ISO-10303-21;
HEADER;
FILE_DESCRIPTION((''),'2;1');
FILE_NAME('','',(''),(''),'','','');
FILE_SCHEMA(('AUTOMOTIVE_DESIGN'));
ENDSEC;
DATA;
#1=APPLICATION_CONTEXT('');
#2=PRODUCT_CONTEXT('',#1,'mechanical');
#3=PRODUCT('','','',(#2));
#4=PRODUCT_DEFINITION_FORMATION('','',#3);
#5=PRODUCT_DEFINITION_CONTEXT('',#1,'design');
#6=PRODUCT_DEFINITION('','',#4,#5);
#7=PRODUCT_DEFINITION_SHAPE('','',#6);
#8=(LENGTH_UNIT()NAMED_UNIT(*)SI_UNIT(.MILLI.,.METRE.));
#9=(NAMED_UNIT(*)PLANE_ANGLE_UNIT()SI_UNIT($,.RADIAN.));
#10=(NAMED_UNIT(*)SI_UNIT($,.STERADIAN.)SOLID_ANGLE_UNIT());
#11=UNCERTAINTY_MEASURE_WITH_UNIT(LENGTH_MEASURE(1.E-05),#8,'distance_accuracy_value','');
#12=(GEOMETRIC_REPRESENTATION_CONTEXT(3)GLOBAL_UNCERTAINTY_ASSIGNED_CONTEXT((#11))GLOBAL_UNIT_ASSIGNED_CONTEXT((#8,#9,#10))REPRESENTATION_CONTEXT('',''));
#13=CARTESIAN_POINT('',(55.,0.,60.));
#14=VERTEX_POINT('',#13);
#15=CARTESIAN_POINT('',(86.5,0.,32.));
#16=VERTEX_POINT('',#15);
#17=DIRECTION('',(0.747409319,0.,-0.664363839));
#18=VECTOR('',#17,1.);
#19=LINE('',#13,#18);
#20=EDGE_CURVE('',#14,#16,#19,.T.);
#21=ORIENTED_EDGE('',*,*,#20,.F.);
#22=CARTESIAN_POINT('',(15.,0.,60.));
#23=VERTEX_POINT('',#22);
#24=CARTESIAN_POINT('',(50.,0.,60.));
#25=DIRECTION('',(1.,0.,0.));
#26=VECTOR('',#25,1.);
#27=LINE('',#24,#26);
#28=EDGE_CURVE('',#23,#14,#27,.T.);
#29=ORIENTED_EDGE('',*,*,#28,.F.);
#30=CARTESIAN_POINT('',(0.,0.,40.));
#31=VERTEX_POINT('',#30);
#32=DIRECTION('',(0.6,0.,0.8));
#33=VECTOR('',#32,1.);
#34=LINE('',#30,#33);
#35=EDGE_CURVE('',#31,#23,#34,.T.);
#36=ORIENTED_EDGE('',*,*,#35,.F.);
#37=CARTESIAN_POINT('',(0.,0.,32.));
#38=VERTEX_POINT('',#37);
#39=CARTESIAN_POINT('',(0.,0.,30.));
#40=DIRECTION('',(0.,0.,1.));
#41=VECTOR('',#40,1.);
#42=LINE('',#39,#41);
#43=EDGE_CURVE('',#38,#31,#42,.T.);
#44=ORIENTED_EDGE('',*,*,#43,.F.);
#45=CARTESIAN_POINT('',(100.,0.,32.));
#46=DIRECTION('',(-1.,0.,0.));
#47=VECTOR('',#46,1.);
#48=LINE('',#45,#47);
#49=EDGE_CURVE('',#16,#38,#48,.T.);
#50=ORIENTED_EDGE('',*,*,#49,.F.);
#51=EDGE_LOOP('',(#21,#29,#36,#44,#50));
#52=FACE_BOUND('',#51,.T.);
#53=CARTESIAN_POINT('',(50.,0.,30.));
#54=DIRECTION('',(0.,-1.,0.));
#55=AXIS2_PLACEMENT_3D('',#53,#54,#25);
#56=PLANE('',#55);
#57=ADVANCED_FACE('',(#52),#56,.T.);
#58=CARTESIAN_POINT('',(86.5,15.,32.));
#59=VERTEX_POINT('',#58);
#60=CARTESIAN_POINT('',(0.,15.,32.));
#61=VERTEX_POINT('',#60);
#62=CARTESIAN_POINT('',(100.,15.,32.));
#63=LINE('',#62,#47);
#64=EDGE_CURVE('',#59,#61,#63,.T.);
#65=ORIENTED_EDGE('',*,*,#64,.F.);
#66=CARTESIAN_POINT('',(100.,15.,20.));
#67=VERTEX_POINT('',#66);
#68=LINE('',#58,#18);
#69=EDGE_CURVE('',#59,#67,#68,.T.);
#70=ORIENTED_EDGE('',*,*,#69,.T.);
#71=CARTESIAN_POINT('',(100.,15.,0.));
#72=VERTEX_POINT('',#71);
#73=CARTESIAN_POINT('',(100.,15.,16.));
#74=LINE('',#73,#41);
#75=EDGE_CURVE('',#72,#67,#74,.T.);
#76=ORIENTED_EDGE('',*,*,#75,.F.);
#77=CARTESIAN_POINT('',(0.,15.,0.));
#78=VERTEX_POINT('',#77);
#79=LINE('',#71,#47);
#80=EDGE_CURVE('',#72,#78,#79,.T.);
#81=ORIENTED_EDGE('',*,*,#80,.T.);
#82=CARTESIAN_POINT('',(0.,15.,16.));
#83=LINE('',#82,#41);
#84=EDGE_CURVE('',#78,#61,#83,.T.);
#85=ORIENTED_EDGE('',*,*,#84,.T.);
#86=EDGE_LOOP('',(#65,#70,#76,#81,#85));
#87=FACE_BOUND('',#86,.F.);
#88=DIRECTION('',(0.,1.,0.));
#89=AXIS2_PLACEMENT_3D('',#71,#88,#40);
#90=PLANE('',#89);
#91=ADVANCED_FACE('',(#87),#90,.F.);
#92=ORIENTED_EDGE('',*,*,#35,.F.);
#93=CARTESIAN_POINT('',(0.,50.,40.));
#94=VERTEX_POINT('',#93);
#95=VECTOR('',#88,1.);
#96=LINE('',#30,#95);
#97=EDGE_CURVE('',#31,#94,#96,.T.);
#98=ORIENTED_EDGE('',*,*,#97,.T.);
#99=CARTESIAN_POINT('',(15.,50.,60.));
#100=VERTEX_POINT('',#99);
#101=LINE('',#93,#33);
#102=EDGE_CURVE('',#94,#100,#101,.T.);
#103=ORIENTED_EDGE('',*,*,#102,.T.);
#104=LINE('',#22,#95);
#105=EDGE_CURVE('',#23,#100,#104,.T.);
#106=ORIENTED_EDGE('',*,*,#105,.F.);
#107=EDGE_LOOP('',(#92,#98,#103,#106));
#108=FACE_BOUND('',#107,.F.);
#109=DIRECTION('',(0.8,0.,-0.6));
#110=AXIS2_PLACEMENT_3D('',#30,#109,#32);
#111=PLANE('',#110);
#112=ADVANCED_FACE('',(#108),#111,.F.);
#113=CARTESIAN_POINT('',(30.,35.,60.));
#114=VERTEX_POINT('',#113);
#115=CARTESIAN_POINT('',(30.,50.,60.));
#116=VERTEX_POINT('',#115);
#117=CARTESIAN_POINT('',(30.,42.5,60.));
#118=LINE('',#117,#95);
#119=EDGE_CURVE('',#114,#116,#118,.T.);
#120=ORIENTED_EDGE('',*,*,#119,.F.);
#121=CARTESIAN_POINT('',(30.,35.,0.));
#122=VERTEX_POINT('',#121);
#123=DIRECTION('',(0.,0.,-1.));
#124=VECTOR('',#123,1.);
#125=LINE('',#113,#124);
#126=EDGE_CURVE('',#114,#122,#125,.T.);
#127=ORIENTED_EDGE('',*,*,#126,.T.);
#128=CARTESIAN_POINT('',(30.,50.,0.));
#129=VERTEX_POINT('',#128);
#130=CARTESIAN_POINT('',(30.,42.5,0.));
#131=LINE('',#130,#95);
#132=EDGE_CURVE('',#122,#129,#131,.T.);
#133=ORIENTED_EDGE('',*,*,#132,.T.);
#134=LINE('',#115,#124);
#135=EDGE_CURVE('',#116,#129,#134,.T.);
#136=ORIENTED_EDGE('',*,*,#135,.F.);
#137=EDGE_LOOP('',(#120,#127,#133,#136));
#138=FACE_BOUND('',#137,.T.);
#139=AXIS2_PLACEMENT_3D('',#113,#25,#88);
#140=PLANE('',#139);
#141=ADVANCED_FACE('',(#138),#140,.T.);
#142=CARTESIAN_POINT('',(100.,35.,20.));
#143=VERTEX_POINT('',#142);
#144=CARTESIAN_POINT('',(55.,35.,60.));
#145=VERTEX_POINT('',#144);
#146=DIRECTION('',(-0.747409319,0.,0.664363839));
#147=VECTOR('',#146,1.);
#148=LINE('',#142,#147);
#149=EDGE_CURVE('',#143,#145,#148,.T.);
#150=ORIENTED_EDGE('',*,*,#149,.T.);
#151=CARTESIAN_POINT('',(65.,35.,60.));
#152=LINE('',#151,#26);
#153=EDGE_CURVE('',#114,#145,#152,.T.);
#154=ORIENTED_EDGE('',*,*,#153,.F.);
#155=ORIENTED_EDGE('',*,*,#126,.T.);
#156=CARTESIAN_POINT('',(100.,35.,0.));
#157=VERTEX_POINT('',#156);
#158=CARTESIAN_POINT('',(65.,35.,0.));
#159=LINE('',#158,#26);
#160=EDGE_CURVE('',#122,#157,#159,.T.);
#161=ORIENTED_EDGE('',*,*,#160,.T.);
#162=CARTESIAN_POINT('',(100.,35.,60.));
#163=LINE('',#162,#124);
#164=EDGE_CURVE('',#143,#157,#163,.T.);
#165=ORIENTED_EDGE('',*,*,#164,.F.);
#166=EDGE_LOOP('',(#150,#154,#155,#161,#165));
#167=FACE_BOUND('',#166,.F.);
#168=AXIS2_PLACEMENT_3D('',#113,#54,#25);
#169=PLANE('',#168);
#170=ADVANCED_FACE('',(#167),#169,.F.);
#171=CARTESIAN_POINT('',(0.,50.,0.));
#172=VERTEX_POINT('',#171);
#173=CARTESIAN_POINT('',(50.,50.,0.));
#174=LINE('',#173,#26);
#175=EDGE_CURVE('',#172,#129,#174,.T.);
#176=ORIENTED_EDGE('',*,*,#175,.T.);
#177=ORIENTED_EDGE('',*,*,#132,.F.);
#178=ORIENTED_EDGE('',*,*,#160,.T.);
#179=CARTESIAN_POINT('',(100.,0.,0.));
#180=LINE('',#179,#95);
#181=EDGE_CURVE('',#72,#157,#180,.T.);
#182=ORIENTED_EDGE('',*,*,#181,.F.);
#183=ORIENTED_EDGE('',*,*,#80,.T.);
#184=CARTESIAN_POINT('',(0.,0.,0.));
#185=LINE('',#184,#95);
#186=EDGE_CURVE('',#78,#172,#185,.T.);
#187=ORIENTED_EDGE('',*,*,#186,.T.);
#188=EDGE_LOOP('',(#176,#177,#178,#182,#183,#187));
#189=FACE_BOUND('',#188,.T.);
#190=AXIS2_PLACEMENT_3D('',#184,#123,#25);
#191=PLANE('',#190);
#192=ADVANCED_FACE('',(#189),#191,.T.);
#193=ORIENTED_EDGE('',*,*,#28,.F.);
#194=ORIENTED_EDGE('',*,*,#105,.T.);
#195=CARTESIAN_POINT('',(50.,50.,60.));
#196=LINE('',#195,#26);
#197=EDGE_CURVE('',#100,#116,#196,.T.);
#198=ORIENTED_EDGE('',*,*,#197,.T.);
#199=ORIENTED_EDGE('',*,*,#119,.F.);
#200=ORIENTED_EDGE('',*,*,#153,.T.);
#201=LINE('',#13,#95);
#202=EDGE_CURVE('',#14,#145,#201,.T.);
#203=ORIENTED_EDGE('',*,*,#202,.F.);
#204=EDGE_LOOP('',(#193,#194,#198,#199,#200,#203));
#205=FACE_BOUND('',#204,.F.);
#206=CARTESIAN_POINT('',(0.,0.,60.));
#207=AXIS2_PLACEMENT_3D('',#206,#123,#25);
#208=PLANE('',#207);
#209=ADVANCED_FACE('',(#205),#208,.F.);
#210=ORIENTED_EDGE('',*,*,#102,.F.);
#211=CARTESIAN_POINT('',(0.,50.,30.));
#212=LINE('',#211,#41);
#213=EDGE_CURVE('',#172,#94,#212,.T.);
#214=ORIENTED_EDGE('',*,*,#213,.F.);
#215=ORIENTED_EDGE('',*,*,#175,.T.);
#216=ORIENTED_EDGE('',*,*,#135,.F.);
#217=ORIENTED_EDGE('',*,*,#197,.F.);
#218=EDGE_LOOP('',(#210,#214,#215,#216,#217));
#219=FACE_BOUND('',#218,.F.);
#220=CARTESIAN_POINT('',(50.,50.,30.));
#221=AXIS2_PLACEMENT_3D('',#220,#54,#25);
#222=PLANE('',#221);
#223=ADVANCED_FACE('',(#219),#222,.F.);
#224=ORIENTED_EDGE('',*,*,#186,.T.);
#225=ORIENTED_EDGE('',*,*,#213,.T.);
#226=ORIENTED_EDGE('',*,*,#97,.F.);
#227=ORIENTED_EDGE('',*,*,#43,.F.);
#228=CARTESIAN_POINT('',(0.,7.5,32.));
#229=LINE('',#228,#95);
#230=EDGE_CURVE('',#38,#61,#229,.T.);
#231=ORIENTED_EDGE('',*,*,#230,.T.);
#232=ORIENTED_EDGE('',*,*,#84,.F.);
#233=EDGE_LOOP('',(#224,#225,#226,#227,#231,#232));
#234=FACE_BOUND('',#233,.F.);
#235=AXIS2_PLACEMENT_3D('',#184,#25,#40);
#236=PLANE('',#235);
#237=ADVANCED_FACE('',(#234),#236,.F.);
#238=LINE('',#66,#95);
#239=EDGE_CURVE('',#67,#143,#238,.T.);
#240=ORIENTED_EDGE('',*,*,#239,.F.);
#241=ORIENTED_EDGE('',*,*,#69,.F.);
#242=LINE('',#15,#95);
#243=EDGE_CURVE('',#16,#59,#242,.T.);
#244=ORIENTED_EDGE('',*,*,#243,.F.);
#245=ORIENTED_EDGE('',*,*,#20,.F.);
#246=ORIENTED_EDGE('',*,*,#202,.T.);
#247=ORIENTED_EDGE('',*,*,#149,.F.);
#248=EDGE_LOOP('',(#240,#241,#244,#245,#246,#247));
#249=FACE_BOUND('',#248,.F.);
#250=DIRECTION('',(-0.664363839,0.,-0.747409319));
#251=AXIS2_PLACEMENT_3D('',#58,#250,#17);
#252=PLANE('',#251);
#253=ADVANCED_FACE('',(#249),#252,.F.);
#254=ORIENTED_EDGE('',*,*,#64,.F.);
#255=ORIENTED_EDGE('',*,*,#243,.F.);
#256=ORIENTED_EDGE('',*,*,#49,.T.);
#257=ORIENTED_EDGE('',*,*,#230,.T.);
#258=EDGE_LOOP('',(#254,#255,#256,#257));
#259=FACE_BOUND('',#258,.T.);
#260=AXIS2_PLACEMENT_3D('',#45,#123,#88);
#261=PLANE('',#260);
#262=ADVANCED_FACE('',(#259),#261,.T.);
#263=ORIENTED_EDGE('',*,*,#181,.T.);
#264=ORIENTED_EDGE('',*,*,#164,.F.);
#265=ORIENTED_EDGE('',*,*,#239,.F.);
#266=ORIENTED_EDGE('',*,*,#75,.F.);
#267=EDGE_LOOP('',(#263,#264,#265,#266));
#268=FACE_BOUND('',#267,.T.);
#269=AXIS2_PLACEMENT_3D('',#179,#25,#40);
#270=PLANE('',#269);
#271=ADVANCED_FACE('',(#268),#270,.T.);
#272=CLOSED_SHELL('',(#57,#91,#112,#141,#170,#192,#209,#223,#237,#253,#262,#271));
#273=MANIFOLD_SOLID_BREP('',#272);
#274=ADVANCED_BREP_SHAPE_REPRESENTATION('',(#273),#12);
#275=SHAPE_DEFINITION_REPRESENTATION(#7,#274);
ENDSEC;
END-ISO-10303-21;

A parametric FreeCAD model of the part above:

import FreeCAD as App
import Part
import Sketcher
from FreeCAD import Vector
Q = App.Units.Quantity


def add_polygon(sketch, points):
    """Adds a closed chain of lines whose ends are joined by coincident constraints."""
    first, n = sketch.GeometryCount, len(points)
    for a, b in zip(points, points[1:] + points[:1]):
        sketch.addGeometry(Part.LineSegment(App.Vector(*a, 0), App.Vector(*b, 0)), False)
    for i in range(n):
        sketch.addConstraint(Sketcher.Constraint("Coincident", first + i, 2, first + (i + 1) % n, 1))

doc = App.newDocument("Part")
body = doc.addObject("PartDesign::Body", "Body")

# Sketch on XZ plane
sketch1 = body.newObject("Sketcher::SketchObject", "Sketch")
sketch1.AttachmentSupport = (doc.getObject("XZ_Plane"), [""])
sketch1.MapMode = "FlatFace"
add_polygon(sketch1, [(0, 60), (0, 0), (100, 0), (100, 60)])  # lines 0-3
sketch1.addConstraint(Sketcher.Constraint("Vertical", 0))
sketch1.addConstraint(Sketcher.Constraint("Horizontal", 1))
sketch1.addConstraint(Sketcher.Constraint("Vertical", 2))
sketch1.addConstraint(Sketcher.Constraint("Horizontal", 3))
sketch1.addConstraint(Sketcher.Constraint("Coincident", 0, 2, -1, 1))
sketch1.addConstraint(Sketcher.Constraint("DistanceX", 1, 1, 1, 2, Q("100 mm")))
sketch1.addConstraint(Sketcher.Constraint("DistanceY", 0, 2, 0, 1, Q("60 mm")))
pad1 = body.newObject("PartDesign::Pad", "Pad")
pad1.Profile = sketch1
pad1.Length = 50
pad1.Reversed = True

# Sketch on XY plane
sketch2 = body.newObject("Sketcher::SketchObject", "Sketch001")
sketch2.AttachmentSupport = (doc.getObject("XY_Plane"), [""])
sketch2.MapMode = "FlatFace"
sketch2.AttachmentOffset = App.Placement(Vector(0, 0, 60), App.Rotation())
add_polygon(sketch2, [(30, 50), (30, 35), (100, 35), (100, 50)])  # lines 0-3
sketch2.addConstraint(Sketcher.Constraint("Vertical", 0))
sketch2.addConstraint(Sketcher.Constraint("Horizontal", 1))
sketch2.addConstraint(Sketcher.Constraint("Vertical", 2))
sketch2.addConstraint(Sketcher.Constraint("Horizontal", 3))
sketch2.addConstraint(Sketcher.Constraint("DistanceX", 1, 1, 1, 2, Q("70 mm")))
sketch2.addConstraint(Sketcher.Constraint("DistanceY", 0, 2, 0, 1, Q("15 mm")))
sketch2.addConstraint(Sketcher.Constraint("DistanceX", -1, 1, 0, 2, Q("30 mm")))
sketch2.addConstraint(Sketcher.Constraint("DistanceY", -1, 1, 0, 2, Q("35 mm")))
pocket1 = body.newObject("PartDesign::Pocket", "Pocket")
pocket1.Profile = sketch2
pocket1.Type = "ThroughAll"

# Sketch on YZ plane
sketch3 = body.newObject("Sketcher::SketchObject", "Sketch002")
sketch3.AttachmentSupport = (doc.getObject("YZ_Plane"), [""])
sketch3.MapMode = "FlatFace"
sketch3.AttachmentOffset = App.Placement(Vector(0, 0, 100), App.Rotation())
add_polygon(sketch3, [(0, 32), (0, 0), (15, 0), (15, 32)])  # lines 0-3
sketch3.addConstraint(Sketcher.Constraint("Vertical", 0))
sketch3.addConstraint(Sketcher.Constraint("Horizontal", 1))
sketch3.addConstraint(Sketcher.Constraint("Vertical", 2))
sketch3.addConstraint(Sketcher.Constraint("Horizontal", 3))
sketch3.addConstraint(Sketcher.Constraint("Coincident", 0, 2, -1, 1))
sketch3.addConstraint(Sketcher.Constraint("DistanceX", 1, 1, 1, 2, Q("15 mm")))
sketch3.addConstraint(Sketcher.Constraint("DistanceY", 0, 2, 0, 1, Q("32 mm")))
pocket2 = body.newObject("PartDesign::Pocket", "Pocket001")
pocket2.Profile = sketch3
pocket2.Type = "ThroughAll"

# Sketch on XZ plane
sketch4 = body.newObject("Sketcher::SketchObject", "Sketch003")
sketch4.AttachmentSupport = (doc.getObject("XZ_Plane"), [""])
sketch4.MapMode = "FlatFace"
add_polygon(sketch4, [(0, 40), (15, 60), (0, 60)])  # lines 0-2
sketch4.addConstraint(Sketcher.Constraint("Horizontal", 1))
sketch4.addConstraint(Sketcher.Constraint("Vertical", 2))
sketch4.addConstraint(Sketcher.Constraint("PointOnObject", 1, 2, -2))
sketch4.addConstraint(Sketcher.Constraint("DistanceX", 1, 2, 1, 1, Q("15 mm")))
sketch4.addConstraint(Sketcher.Constraint("DistanceY", 2, 2, 2, 1, Q("20 mm")))
sketch4.addConstraint(Sketcher.Constraint("DistanceY", -1, 1, 0, 2, Q("60 mm")))
pocket3 = body.newObject("PartDesign::Pocket", "Pocket002")
pocket3.Profile = sketch4
pocket3.Type = "ThroughAll"

# Sketch on XZ plane
sketch5 = body.newObject("Sketcher::SketchObject", "Sketch004")
sketch5.AttachmentSupport = (doc.getObject("XZ_Plane"), [""])
sketch5.MapMode = "FlatFace"
add_polygon(sketch5, [(100, 60), (55, 60), (86, 32), (100, 32)])  # lines 0-3
sketch5.addConstraint(Sketcher.Constraint("Horizontal", 0))
sketch5.addConstraint(Sketcher.Constraint("Horizontal", 2))
sketch5.addConstraint(Sketcher.Constraint("Vertical", 3))
sketch5.addConstraint(Sketcher.Constraint("DistanceX", 0, 2, 0, 1, Q("45 mm")))
sketch5.addConstraint(Sketcher.Constraint("DistanceY", 3, 1, 3, 2, Q("28 mm")))
sketch5.addConstraint(Sketcher.Constraint("DistanceX", 2, 1, 2, 2, Q("13.5 mm")))
sketch5.addConstraint(Sketcher.Constraint("DistanceX", -1, 1, 0, 2, Q("55 mm")))
sketch5.addConstraint(Sketcher.Constraint("DistanceY", -1, 1, 0, 2, Q("60 mm")))
pocket4 = body.newObject("PartDesign::Pocket", "Pocket003")
pocket4.Profile = sketch5
pocket4.Type = "ThroughAll"

# Sketch on XZ plane
sketch6 = body.newObject("Sketcher::SketchObject", "Sketch005")
sketch6.AttachmentSupport = (doc.getObject("XZ_Plane"), [""])
sketch6.MapMode = "FlatFace"
sketch6.AttachmentOffset = App.Placement(Vector(0, 0, -15), App.Rotation())
add_polygon(sketch6, [(100, 32), (86, 32), (100, 20)])  # lines 0-2
sketch6.addConstraint(Sketcher.Constraint("Horizontal", 0))
sketch6.addConstraint(Sketcher.Constraint("Vertical", 2))
sketch6.addConstraint(Sketcher.Constraint("DistanceY", 2, 1, 2, 2, Q("12 mm")))
sketch6.addConstraint(Sketcher.Constraint("DistanceX", 0, 2, 0, 1, Q("13.5 mm")))
sketch6.addConstraint(Sketcher.Constraint("DistanceY", -1, 1, 0, 2, Q("32 mm")))
sketch6.addConstraint(Sketcher.Constraint("DistanceX", -1, 1, 1, 2, Q("100 mm")))
pocket5 = body.newObject("PartDesign::Pocket", "Pocket004")
pocket5.Profile = sketch6
pocket5.Type = "ThroughAll"

doc.recompute()
